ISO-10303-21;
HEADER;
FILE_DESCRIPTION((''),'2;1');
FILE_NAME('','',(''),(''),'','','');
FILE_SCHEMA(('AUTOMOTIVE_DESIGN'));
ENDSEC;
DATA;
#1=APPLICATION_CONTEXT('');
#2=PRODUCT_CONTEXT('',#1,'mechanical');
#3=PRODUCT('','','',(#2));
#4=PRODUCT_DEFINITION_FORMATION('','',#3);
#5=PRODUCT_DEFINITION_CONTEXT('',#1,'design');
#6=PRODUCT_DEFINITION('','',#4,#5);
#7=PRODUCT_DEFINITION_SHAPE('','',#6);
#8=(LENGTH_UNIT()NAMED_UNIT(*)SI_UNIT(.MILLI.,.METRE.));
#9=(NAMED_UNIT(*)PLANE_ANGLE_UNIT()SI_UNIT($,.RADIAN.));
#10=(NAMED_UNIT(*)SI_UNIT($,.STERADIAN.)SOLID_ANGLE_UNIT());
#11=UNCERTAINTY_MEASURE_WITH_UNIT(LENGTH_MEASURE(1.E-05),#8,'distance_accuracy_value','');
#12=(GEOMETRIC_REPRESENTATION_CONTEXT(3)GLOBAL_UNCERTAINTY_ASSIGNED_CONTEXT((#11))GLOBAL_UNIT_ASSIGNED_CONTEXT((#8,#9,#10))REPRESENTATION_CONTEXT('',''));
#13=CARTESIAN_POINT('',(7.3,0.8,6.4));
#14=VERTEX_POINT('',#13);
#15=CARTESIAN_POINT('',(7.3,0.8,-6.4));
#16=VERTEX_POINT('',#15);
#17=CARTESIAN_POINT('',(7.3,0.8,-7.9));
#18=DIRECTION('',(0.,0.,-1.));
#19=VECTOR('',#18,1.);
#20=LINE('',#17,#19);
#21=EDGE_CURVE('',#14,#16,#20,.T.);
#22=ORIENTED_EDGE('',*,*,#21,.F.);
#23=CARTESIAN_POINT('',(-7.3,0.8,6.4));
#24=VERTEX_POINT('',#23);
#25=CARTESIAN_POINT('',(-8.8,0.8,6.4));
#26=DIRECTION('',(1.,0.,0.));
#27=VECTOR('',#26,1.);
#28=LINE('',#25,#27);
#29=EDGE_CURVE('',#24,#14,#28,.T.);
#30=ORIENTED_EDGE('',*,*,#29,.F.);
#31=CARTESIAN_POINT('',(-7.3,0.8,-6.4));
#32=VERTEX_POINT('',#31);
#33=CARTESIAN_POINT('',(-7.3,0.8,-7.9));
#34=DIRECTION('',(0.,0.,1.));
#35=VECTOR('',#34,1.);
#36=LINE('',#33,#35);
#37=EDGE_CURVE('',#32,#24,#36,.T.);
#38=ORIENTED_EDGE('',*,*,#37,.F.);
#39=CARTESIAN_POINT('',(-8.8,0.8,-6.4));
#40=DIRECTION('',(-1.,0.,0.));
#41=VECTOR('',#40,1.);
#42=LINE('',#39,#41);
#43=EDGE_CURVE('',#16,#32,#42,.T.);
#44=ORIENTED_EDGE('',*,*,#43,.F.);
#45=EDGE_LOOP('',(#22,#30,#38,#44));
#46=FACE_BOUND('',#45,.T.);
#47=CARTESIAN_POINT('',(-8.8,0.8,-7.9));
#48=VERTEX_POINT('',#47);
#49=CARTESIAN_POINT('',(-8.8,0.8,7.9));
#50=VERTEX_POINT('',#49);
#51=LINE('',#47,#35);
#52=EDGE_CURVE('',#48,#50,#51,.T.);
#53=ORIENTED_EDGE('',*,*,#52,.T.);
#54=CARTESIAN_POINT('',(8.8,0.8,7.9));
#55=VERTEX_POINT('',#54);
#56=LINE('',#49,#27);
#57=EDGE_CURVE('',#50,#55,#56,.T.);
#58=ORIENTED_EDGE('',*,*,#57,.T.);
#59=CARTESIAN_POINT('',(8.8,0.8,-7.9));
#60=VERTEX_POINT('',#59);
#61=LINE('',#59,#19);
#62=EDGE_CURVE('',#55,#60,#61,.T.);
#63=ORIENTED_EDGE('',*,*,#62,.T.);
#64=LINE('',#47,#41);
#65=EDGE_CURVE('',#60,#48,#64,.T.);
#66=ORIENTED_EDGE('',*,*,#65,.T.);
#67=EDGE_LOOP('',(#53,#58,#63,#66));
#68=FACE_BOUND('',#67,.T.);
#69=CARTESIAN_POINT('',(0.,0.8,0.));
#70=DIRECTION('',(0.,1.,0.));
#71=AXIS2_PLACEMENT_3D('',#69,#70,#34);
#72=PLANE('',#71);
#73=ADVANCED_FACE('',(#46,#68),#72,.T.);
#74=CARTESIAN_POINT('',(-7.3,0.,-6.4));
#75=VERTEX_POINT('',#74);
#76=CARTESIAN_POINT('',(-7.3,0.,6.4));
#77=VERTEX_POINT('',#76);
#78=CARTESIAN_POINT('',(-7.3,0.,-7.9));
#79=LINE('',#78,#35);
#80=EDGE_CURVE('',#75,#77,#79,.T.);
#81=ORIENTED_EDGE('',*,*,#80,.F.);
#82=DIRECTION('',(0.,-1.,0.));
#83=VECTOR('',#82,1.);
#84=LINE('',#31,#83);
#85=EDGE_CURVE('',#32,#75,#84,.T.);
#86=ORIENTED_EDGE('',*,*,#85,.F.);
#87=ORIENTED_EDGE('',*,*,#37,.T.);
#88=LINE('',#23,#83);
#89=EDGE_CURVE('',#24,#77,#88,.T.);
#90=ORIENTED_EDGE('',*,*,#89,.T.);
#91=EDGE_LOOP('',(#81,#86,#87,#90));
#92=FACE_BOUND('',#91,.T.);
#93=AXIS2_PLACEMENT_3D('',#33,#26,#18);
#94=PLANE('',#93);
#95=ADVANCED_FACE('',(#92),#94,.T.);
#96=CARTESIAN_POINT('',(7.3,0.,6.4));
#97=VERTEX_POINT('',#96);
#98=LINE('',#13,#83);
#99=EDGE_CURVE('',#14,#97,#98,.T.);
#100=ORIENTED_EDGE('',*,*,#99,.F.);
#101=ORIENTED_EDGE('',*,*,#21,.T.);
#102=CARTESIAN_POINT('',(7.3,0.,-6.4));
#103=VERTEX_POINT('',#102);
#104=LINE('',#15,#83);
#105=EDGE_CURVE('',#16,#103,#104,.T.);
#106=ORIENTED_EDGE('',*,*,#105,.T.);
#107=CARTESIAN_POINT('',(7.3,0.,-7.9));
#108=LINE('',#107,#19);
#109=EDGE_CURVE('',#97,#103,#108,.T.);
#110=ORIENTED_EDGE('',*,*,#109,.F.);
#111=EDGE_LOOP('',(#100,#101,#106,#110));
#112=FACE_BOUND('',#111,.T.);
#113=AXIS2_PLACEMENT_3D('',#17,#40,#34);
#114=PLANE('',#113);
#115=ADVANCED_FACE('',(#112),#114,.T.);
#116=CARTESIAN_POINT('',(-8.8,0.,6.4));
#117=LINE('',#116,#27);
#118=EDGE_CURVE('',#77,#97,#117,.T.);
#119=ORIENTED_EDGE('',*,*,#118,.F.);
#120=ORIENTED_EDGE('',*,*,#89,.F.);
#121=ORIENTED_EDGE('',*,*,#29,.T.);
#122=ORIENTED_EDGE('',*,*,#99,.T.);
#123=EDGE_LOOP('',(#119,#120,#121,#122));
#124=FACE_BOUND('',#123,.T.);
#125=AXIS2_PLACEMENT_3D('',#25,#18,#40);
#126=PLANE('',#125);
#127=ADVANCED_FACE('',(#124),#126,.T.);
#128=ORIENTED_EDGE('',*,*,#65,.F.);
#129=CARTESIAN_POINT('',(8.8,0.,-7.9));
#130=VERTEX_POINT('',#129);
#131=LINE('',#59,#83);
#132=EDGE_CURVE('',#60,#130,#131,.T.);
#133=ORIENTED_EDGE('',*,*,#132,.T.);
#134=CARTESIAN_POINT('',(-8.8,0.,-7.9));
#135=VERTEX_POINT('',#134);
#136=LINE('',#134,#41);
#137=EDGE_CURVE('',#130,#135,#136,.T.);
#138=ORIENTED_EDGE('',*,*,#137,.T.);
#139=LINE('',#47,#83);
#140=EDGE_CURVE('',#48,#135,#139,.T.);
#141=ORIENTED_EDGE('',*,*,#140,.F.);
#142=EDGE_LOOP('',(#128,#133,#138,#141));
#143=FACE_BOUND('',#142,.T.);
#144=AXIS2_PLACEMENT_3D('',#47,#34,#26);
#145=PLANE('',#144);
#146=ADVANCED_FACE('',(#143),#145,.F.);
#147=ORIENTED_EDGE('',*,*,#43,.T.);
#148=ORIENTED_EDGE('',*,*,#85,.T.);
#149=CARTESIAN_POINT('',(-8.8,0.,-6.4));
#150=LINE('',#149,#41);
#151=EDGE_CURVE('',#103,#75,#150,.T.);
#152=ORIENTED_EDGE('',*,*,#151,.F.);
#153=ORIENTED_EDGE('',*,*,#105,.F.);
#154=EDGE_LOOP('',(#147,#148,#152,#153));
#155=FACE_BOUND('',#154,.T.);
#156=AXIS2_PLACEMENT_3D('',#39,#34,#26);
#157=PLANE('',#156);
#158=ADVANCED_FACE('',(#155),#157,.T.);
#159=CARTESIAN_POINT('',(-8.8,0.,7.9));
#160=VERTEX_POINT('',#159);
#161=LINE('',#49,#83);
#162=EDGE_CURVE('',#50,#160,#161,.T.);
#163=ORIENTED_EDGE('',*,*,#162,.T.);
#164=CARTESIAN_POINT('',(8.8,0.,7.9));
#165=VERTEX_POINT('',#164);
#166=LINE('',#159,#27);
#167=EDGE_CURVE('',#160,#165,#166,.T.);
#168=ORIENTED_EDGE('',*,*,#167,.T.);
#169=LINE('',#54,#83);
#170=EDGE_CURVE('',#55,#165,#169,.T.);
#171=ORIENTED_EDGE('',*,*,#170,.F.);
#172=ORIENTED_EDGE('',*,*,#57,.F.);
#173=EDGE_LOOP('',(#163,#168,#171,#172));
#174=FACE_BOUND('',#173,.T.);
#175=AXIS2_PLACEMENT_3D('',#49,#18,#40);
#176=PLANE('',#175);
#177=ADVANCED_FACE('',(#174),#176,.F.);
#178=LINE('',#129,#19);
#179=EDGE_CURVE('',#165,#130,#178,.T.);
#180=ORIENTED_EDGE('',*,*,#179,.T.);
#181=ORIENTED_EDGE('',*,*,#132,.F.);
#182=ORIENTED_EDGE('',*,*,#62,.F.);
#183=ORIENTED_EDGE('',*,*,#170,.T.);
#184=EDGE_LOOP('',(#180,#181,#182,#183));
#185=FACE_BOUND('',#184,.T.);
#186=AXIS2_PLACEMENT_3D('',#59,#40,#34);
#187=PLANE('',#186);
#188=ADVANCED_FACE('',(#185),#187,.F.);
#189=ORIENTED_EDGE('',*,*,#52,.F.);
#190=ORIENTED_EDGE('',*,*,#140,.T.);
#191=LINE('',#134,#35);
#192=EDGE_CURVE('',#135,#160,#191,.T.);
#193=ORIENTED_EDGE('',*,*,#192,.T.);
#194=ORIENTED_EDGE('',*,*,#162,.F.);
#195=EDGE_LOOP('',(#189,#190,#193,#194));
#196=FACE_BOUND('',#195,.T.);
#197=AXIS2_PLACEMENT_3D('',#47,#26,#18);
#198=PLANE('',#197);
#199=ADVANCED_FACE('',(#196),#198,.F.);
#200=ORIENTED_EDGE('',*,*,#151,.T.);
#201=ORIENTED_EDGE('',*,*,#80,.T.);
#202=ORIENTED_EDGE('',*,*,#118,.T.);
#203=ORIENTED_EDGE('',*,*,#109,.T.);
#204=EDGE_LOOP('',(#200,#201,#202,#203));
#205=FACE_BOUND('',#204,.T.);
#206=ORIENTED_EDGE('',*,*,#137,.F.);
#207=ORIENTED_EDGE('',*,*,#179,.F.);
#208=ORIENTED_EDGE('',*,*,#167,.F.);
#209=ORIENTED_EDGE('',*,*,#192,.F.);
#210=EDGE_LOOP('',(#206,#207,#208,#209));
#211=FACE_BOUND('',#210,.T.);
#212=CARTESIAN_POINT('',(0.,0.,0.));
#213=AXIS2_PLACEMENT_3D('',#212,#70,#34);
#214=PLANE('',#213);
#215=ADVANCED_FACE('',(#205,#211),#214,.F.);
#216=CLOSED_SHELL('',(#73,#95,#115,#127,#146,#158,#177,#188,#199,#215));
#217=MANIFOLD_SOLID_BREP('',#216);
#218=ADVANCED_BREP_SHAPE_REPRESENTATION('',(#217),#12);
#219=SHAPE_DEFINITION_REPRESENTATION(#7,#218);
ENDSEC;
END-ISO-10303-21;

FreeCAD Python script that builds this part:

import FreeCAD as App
import Part
import Sketcher
from FreeCAD import Vector


def add_polygon(sketch, points):
    """Adds a closed chain of lines whose ends are joined by coincident constraints."""
    first, n = sketch.GeometryCount, len(points)
    for a, b in zip(points, points[1:] + points[:1]):
        sketch.addGeometry(Part.LineSegment(App.Vector(*a, 0), App.Vector(*b, 0)), False)
    for i in range(n):
        sketch.addConstraint(Sketcher.Constraint("Coincident", first + i, 2, first + (i + 1) % n, 1))

doc = App.newDocument("Part")
body = doc.addObject("PartDesign::Body", "Body")

sketch1 = body.newObject("Sketcher::SketchObject", "Sketch")
sketch1.AttachmentSupport = (doc.getObject("XZ_Plane"), [""])
sketch1.MapMode = "FlatFace"
add_polygon(sketch1, [(-9, -8), (-9, 8), (9, 8), (9, -8)])
add_polygon(sketch1, [(7, 6), (-7, 6), (-7, -6), (7, -6)])
sketch1.addConstraint(Sketcher.Constraint("Vertical", 0))
sketch1.addConstraint(Sketcher.Constraint("Horizontal", 1))
sketch1.addConstraint(Sketcher.Constraint("Vertical", 2))
sketch1.addConstraint(Sketcher.Constraint("Horizontal", 3))
sketch1.addConstraint(Sketcher.Constraint("Horizontal", 4))
sketch1.addConstraint(Sketcher.Constraint("Vertical", 5))
sketch1.addConstraint(Sketcher.Constraint("Horizontal", 6))
sketch1.addConstraint(Sketcher.Constraint("Vertical", 7))
sketch1.addConstraint(Sketcher.Constraint("Symmetric", 0, 2, 2, 2, -1, 1))
sketch1.addConstraint(Sketcher.Constraint("Symmetric", 4, 2, 6, 2, -1, 1))
sketch1.addConstraint(Sketcher.Constraint("DistanceX", 1, 1, 1, 2, 17.6))
sketch1.addConstraint(Sketcher.Constraint("DistanceX", 4, 2, 4, 1, 14.6))
sketch1.addConstraint(Sketcher.Constraint("DistanceY", 0, 1, 0, 2, 15.8))
sketch1.addConstraint(Sketcher.Constraint("DistanceY", 5, 2, 5, 1, 12.8))
pad1 = body.newObject("PartDesign::Pad", "Pad")
pad1.Profile = sketch1
pad1.Length = 0.8
pad1.Reversed = True

doc.recompute()
